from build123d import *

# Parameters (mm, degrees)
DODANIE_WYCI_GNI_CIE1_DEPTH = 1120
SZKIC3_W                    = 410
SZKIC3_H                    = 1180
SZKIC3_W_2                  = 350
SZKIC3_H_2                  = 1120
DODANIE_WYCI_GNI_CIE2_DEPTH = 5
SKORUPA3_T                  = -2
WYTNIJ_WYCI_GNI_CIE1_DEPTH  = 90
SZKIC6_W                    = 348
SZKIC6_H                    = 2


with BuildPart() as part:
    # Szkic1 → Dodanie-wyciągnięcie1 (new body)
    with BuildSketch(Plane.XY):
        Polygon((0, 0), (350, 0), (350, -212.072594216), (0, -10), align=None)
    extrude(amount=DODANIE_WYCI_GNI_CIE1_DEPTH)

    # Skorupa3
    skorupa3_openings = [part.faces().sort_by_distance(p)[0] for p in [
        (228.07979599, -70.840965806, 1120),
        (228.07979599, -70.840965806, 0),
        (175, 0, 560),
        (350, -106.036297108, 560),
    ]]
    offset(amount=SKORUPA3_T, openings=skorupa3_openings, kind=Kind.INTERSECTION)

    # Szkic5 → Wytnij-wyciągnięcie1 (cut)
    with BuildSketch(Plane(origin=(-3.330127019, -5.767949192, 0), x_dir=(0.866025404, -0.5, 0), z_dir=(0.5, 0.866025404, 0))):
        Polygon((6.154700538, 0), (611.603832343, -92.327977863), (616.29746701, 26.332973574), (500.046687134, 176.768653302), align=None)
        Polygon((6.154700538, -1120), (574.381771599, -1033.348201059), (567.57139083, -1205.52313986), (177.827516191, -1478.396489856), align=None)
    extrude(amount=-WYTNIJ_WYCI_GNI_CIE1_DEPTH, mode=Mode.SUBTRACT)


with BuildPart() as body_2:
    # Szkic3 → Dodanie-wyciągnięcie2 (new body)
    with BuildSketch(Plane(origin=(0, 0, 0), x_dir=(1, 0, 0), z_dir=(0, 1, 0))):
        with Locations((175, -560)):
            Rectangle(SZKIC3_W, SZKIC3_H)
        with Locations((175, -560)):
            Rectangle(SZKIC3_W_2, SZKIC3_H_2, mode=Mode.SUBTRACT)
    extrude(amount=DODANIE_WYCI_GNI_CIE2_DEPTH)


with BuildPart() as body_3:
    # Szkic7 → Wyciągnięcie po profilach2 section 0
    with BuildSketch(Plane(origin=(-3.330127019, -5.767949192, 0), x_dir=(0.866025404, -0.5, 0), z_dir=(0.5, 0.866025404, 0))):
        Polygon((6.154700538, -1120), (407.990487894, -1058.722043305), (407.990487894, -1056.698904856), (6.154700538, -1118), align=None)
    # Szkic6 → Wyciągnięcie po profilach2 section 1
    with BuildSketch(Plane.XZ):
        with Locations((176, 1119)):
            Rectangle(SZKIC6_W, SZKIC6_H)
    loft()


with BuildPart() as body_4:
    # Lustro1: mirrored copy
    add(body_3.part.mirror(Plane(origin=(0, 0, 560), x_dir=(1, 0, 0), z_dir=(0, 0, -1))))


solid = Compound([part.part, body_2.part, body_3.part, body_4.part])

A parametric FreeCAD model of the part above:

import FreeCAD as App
import Part
import Sketcher
from FreeCAD import Vector
Q = App.Units.Quantity


def faces_at(feature, points):
    """Names of the faces that lie closest to the given points."""
    faces = feature.Shape.Faces
    near = lambda p: min(range(len(faces)), key=lambda i: faces[i].distToShape(Part.Vertex(*p))[0])
    return sorted({f"Face{near(p) + 1}" for p in points})

doc = App.newDocument("Part")
params = doc.addObject("Spreadsheet::Sheet", "Params")
for row, (alias, value) in enumerate([
    ("sketch1_width", "350 mm"),
    ("sketch1_height", "10 mm"),
    ("pad1_length", "1120 mm"),
    ("thickness_wall", "2 mm"),
    ("pocket1_length", "90 mm"),
    ("sketch3_width", "410 mm"),
    ("sketch3_width2", "350 mm"),
    ("sketch3_height", "1180 mm"),
    ("sketch3_height2", "1120 mm"),
    ("pad2_length", "5 mm"),
    ("sketch4_height", "2 mm"),
    ("sketch5_width", "348 mm"),
    ("sketch5_height", "2 mm"),
], start=1):
    params.set(f"A{row}", alias)
    params.set(f"B{row}", "=" + value)
    params.setAlias(f"B{row}", alias)

body = doc.addObject("PartDesign::Body", "Body")

# Sketch on XY plane
sketch1 = body.newObject("Sketcher::SketchObject", "Sketch")
sketch1.AttachmentSupport = (doc.getObject("XY_Plane"), [""])
sketch1.MapMode = "FlatFace"
sketch1.addGeometry([
    Part.LineSegment(Vector(350, 0, 0), Vector(0, 0, 0)),
    Part.LineSegment(Vector(0, 0, 0), Vector(0, -10, 0)),
    Part.LineSegment(Vector(0, -10, 0), Vector(350, -212, 0)),
    Part.LineSegment(Vector(350, -212, 0), Vector(350, 0, 0)),
], False)
sketch1.addConstraint([
    Sketcher.Constraint("Coincident", 0, 2, 1, 1),
    Sketcher.Constraint("Coincident", 1, 2, 2, 1),
    Sketcher.Constraint("Coincident", 2, 2, 3, 1),
    Sketcher.Constraint("Coincident", 3, 2, 0, 1),
    Sketcher.Constraint("Horizontal", 0),
    Sketcher.Constraint("Vertical", 1),
    Sketcher.Constraint("Vertical", 3),
    Sketcher.Constraint("Coincident", 0, 2, -1, 1),
    Sketcher.Constraint("DistanceX", 0, 2, 0, 1, 350.0),
    Sketcher.Constraint("DistanceY", 1, 2, 1, 1, 10.0),
    Sketcher.Constraint("Angle", 2, Q("-30 deg")),
])
sketch1.setExpression("Constraints[8]", "Params.sketch1_width")
sketch1.setExpression("Constraints[9]", "Params.sketch1_height")
pad1 = body.newObject("PartDesign::Pad", "Pad")
pad1.Profile = sketch1
pad1.setExpression("Length", "Params.pad1_length")
doc.recompute()

thickness = body.newObject("PartDesign::Thickness", "Thickness")
thickness.Base = (pad1, faces_at(pad1, [
    (175, -106.036, 1120),
    (175, -106.036, 0),
    (175, 0, 560),
    (350, -106.036, 560),
]))
thickness.setExpression("Value", "Params.thickness_wall")
thickness.Reversed = True
thickness.Join = "Intersection"

# Sketch on an angled plane
sketch2 = body.newObject("Sketcher::SketchObject", "Sketch001")
sketch2.Placement = App.Placement(Vector(-3.330127, -5.767949, 0), App.Rotation(Vector(0.866025404, -0.5, 0), Vector(0, 0, -1), Vector(0.5, 0.866025404, 0), "ZXY"))
sketch2.addGeometry([
    Part.LineSegment(Vector(6.154701, 0, 0), Vector(611.603833, -92.327978, 0)),  # 0
    Part.LineSegment(Vector(611.603833, -92.327978, 0), Vector(616.297467, 26.332974, 0)),  # 1
    Part.LineSegment(Vector(616.297467, 26.332974, 0), Vector(500.046687, 176.768653, 0)),  # 2
    Part.LineSegment(Vector(500.046687, 176.768653, 0), Vector(6.154701, 0, 0)),  # 3
    Part.LineSegment(Vector(574.381772, -1033.348202, 0), Vector(6.154701, -1120.000001, 0)),  # 4
    Part.LineSegment(Vector(6.154701, -1120.000001, 0), Vector(177.827516, -1478.396491, 0)),  # 5
    Part.LineSegment(Vector(177.827516, -1478.396491, 0), Vector(567.571391, -1205.523141, 0)),  # 6
    Part.LineSegment(Vector(567.571391, -1205.523141, 0), Vector(574.381772, -1033.348202, 0)),  # 7
], False)
sketch2.addConstraint([
    Sketcher.Constraint("Coincident", 0, 2, 1, 1),
    Sketcher.Constraint("Coincident", 1, 2, 2, 1),
    Sketcher.Constraint("Coincident", 2, 2, 3, 1),
    Sketcher.Constraint("Coincident", 3, 2, 0, 1),
    Sketcher.Constraint("Coincident", 4, 2, 5, 1),
    Sketcher.Constraint("Coincident", 5, 2, 6, 1),
    Sketcher.Constraint("Coincident", 6, 2, 7, 1),
    Sketcher.Constraint("Coincident", 7, 2, 4, 1),
    Sketcher.Constraint("PointOnObject", 3, 2, -1),
    Sketcher.Constraint("DistanceY", 4, 2, -1, 1, 1120.000001),
    Sketcher.Constraint("DistanceX", -1, 1, 3, 2, 6.154701),
    Sketcher.Constraint("DistanceX", -1, 1, 4, 2, 6.154701),
    Sketcher.Constraint("DistanceY", 7, 2, -1, 1, 1033.348202),
    Sketcher.Constraint("Distance", 5, 397.390991),
    Sketcher.Constraint("Distance", 7, 172.309579),
    Sketcher.Constraint("DistanceY", 5, 2, -1, 1, 1478.396491),
    Sketcher.Constraint("DistanceX", -1, 1, 6, 2, 567.571391),
    Sketcher.Constraint("DistanceY", 6, 2, -1, 1, 1205.523141),
    Sketcher.Constraint("DistanceY", 0, 2, 1, 2, 118.660952),
    Sketcher.Constraint("DistanceX", 2, 2, 1, 2, 116.25078),
    Sketcher.Constraint("DistanceY", 1, 2, 2, 2, 150.43568),
    Sketcher.Constraint("DistanceX", 5, 2, 1, 2, 438.469951),
    Sketcher.Constraint("DistanceX", 6, 2, 0, 2, 44.032442),
    Sketcher.Constraint("Distance", 0, 612.448453),
])
pocket1 = body.newObject("PartDesign::Pocket", "Pocket")
pocket1.Profile = sketch2
pocket1.setExpression("Length", "Params.pocket1_length")
body2 = doc.addObject("PartDesign::Body", "Body001")

# Sketch on XZ plane
sketch3 = body2.newObject("Sketcher::SketchObject", "Sketch002")
sketch3.AttachmentSupport = (doc.getObject("XZ_Plane001"), [""])
sketch3.MapMode = "FlatFace"
sketch3.addGeometry([
    Part.LineSegment(Vector(-30, -30, 0), Vector(-30, 1150, 0)),  # 0
    Part.LineSegment(Vector(-30, 1150, 0), Vector(380, 1150, 0)),  # 1
    Part.LineSegment(Vector(380, 1150, 0), Vector(380, -30, 0)),  # 2
    Part.LineSegment(Vector(380, -30, 0), Vector(-30, -30, 0)),  # 3
    Part.LineSegment(Vector(350, 1120, 0), Vector(0, 1120, 0)),  # 4
    Part.LineSegment(Vector(0, 1120, 0), Vector(0, 0, 0)),  # 5
    Part.LineSegment(Vector(0, 0, 0), Vector(350, 0, 0)),  # 6
    Part.LineSegment(Vector(350, 0, 0), Vector(350, 1120, 0)),  # 7
], False)
sketch3.addConstraint([
    Sketcher.Constraint("Coincident", 0, 2, 1, 1),
    Sketcher.Constraint("Coincident", 1, 2, 2, 1),
    Sketcher.Constraint("Coincident", 2, 2, 3, 1),
    Sketcher.Constraint("Coincident", 3, 2, 0, 1),
    Sketcher.Constraint("Coincident", 4, 2, 5, 1),
    Sketcher.Constraint("Coincident", 5, 2, 6, 1),
    Sketcher.Constraint("Coincident", 6, 2, 7, 1),
    Sketcher.Constraint("Coincident", 7, 2, 4, 1),
    Sketcher.Constraint("Vertical", 0),
    Sketcher.Constraint("Horizontal", 1),
    Sketcher.Constraint("Vertical", 2),
    Sketcher.Constraint("Horizontal", 3),
    Sketcher.Constraint("Horizontal", 4),
    Sketcher.Constraint("Vertical", 5),
    Sketcher.Constraint("Horizontal", 6),
    Sketcher.Constraint("Vertical", 7),
    Sketcher.Constraint("Coincident", 5, 2, -1, 1),
    Sketcher.Constraint("DistanceX", 1, 1, 1, 2, 410.0),
    Sketcher.Constraint("DistanceX", 4, 2, 4, 1, 350.0),
    Sketcher.Constraint("DistanceY", 0, 1, 0, 2, 1180.0),
    Sketcher.Constraint("DistanceY", 5, 2, 5, 1, 1120.0),
    Sketcher.Constraint("DistanceX", 0, 2, -1, 1, 30.0),
    Sketcher.Constraint("DistanceY", -1, 1, 0, 2, 1150.0),
])
sketch3.setExpression("Constraints[17]", "Params.sketch3_width")
sketch3.setExpression("Constraints[18]", "Params.sketch3_width2")
sketch3.setExpression("Constraints[19]", "Params.sketch3_height")
sketch3.setExpression("Constraints[20]", "Params.sketch3_height2")
pad2 = body2.newObject("PartDesign::Pad", "Pad001")
pad2.Profile = sketch3
pad2.setExpression("Length", "Params.pad2_length")
pad2.Reversed = True
body3 = doc.addObject("PartDesign::Body", "Body002")

# Sketch on an angled plane
sketch4 = body3.newObject("Sketcher::SketchObject", "Sketch003")
sketch4.Placement = App.Placement(Vector(-3.330127, -5.767949, 0), App.Rotation(Vector(0.866025404, -0.5, 0), Vector(0, 0, -1), Vector(0.5, 0.866025404, 0), "ZXY"))
sketch4.addGeometry([
    Part.LineSegment(Vector(6.2, -1120, 0), Vector(408, -1058.7, 0)),
    Part.LineSegment(Vector(408, -1058.7, 0), Vector(408, -1056.7, 0)),
    Part.LineSegment(Vector(408, -1056.7, 0), Vector(6.2, -1118, 0)),
    Part.LineSegment(Vector(6.2, -1118, 0), Vector(6.2, -1120, 0)),
], False)
sketch4.addConstraint([
    Sketcher.Constraint("Coincident", 0, 2, 1, 1),
    Sketcher.Constraint("Coincident", 1, 2, 2, 1),
    Sketcher.Constraint("Coincident", 2, 2, 3, 1),
    Sketcher.Constraint("Coincident", 3, 2, 0, 1),
    Sketcher.Constraint("Vertical", 1),
    Sketcher.Constraint("Vertical", 3),
    Sketcher.Constraint("DistanceY", 3, 2, 3, 1, 2.0),
    Sketcher.Constraint("DistanceY", 2, 2, -1, 1, 1118.000001),
    Sketcher.Constraint("DistanceY", 1, 1, 1, 2, 2.023138),
    Sketcher.Constraint("DistanceX", -1, 1, 2, 2, 6.154701),
    Sketcher.Constraint("DistanceX", -1, 1, 0, 2, 407.990488),
    Sketcher.Constraint("Distance", 0, 406.481227),
])
sketch4.setExpression("Constraints[6]", "Params.sketch4_height")

# Sketch on XZ plane
sketch5 = body3.newObject("Sketcher::SketchObject", "Sketch004")
sketch5.AttachmentSupport = (doc.getObject("XZ_Plane002"), [""])
sketch5.MapMode = "FlatFace"
sketch5.addGeometry([
    Part.LineSegment(Vector(2, 1120, 0), Vector(2, 1118, 0)),
    Part.LineSegment(Vector(2, 1118, 0), Vector(350, 1118, 0)),
    Part.LineSegment(Vector(350, 1118, 0), Vector(350, 1120, 0)),
    Part.LineSegment(Vector(350, 1120, 0), Vector(2, 1120, 0)),
], False)
sketch5.addConstraint([
    Sketcher.Constraint("Coincident", 0, 2, 1, 1),
    Sketcher.Constraint("Coincident", 1, 2, 2, 1),
    Sketcher.Constraint("Coincident", 2, 2, 3, 1),
    Sketcher.Constraint("Coincident", 3, 2, 0, 1),
    Sketcher.Constraint("Vertical", 0),
    Sketcher.Constraint("Horizontal", 1),
    Sketcher.Constraint("Vertical", 2),
    Sketcher.Constraint("Horizontal", 3),
    Sketcher.Constraint("DistanceX", 1, 1, 1, 2, 348.0),
    Sketcher.Constraint("DistanceY", 0, 2, 0, 1, 2.0),
    Sketcher.Constraint("DistanceX", -1, 1, 0, 2, 2.0),
    Sketcher.Constraint("DistanceY", -1, 1, 0, 2, 1118.0),
])
sketch5.setExpression("Constraints[8]", "Params.sketch5_width")
sketch5.setExpression("Constraints[9]", "Params.sketch5_height")

additiveloft = body3.newObject("PartDesign::AdditiveLoft", "AdditiveLoft")
additiveloft.Profile = sketch4
additiveloft.Sections = [sketch5]
body4 = doc.addObject("PartDesign::Body", "Body003")
doc.recompute()

mirroring = doc.addObject("Part::Mirroring", "Mirroring")
mirroring.Source = body3
mirroring.Base = Vector(0, 0, 560)
mirroring.Normal = Vector(0, 0, -1)
body4.BaseFeature = mirroring
doc.recompute()
mirroring.Visibility = False

doc.recompute()
